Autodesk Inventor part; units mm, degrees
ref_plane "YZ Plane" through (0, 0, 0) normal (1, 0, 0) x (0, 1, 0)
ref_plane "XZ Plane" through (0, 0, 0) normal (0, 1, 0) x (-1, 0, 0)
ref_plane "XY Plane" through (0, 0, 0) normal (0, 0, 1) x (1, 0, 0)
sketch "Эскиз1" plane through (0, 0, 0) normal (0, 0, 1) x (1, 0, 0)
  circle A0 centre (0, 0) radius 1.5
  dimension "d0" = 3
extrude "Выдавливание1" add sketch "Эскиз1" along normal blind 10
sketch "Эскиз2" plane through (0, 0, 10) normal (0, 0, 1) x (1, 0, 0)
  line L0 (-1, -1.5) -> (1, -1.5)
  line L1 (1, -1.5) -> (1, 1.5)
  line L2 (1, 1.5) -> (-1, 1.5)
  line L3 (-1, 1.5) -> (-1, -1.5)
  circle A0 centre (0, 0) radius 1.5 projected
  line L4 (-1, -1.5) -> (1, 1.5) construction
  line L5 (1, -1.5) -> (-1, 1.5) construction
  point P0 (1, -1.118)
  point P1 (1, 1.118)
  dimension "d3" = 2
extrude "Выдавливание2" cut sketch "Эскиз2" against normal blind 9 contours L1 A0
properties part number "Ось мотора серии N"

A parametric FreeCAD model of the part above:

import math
import FreeCAD as App
import Part
import Sketcher

doc = App.newDocument("Part")
params = doc.addObject("Spreadsheet::Sheet", "Params")
for row, (alias, value) in enumerate([
    ("sketch1_diameter", "3 mm"),
    ("pad1_length", "10 mm"),
    ("sketch2_radius", "1.5 mm"),
    ("pocket1_length", "9 mm"),
], start=1):
    params.set(f"A{row}", alias)
    params.set(f"B{row}", "=" + value)
    params.setAlias(f"B{row}", alias)

body = doc.addObject("PartDesign::Body", "Body")

sketch1 = doc.addObject("Sketcher::SketchObject", "Sketch")
body.addObject(sketch1)
sketch1.AttachmentSupport = (doc.XY_Plane, [""])
sketch1.MapMode = "FlatFace"
sketch1.addGeometry(Part.Circle(App.Vector(0, 0, 0), App.Vector(0, 0, 1), 1.5), False)
sketch1.addConstraint(Sketcher.Constraint("Coincident", 0, 3, -1, 1))
sketch1.addConstraint(Sketcher.Constraint("Diameter", 0, 3.0))
sketch1.setExpression("Constraints[1]", "Params.sketch1_diameter")
pad1 = doc.addObject("PartDesign::Pad", "Pad")
body.addObject(pad1)
pad1.Profile = sketch1
pad1.setExpression("Length", "Params.pad1_length")

sketch2 = doc.addObject("Sketcher::SketchObject", "Sketch001")
body.addObject(sketch2)
sketch2.AttachmentSupport = (doc.XY_Plane, [""])
sketch2.MapMode = "FlatFace"
sketch2.AttachmentOffset = App.Placement(App.Vector(0, 0, 10), App.Rotation())
sketch2.addGeometry(Part.LineSegment(App.Vector(1, 1.1, 0), App.Vector(1, -1.1, 0)), False)
sketch2.addGeometry(Part.ArcOfCircle(Part.Circle(App.Vector(0, 0, 0), App.Vector(0, 0, 1), 1.5), math.radians(-48), math.radians(48)), False)
sketch2.addConstraint(Sketcher.Constraint("Coincident", 0, 1, 1, 2))
sketch2.addConstraint(Sketcher.Constraint("Coincident", 1, 1, 0, 2))
sketch2.addConstraint(Sketcher.Constraint("Vertical", 0))
sketch2.addConstraint(Sketcher.Constraint("Coincident", 1, 3, -1, 1))
sketch2.addConstraint(Sketcher.Constraint("Radius", 1, 1.5))
sketch2.addConstraint(Sketcher.Constraint("DistanceX", -1, 1, 0, 1, 1.0))
sketch2.setExpression("Constraints[4]", "Params.sketch2_radius")
pocket1 = doc.addObject("PartDesign::Pocket", "Pocket")
body.addObject(pocket1)
pocket1.Profile = sketch2
pocket1.setExpression("Length", "Params.pocket1_length")

doc.recompute()
